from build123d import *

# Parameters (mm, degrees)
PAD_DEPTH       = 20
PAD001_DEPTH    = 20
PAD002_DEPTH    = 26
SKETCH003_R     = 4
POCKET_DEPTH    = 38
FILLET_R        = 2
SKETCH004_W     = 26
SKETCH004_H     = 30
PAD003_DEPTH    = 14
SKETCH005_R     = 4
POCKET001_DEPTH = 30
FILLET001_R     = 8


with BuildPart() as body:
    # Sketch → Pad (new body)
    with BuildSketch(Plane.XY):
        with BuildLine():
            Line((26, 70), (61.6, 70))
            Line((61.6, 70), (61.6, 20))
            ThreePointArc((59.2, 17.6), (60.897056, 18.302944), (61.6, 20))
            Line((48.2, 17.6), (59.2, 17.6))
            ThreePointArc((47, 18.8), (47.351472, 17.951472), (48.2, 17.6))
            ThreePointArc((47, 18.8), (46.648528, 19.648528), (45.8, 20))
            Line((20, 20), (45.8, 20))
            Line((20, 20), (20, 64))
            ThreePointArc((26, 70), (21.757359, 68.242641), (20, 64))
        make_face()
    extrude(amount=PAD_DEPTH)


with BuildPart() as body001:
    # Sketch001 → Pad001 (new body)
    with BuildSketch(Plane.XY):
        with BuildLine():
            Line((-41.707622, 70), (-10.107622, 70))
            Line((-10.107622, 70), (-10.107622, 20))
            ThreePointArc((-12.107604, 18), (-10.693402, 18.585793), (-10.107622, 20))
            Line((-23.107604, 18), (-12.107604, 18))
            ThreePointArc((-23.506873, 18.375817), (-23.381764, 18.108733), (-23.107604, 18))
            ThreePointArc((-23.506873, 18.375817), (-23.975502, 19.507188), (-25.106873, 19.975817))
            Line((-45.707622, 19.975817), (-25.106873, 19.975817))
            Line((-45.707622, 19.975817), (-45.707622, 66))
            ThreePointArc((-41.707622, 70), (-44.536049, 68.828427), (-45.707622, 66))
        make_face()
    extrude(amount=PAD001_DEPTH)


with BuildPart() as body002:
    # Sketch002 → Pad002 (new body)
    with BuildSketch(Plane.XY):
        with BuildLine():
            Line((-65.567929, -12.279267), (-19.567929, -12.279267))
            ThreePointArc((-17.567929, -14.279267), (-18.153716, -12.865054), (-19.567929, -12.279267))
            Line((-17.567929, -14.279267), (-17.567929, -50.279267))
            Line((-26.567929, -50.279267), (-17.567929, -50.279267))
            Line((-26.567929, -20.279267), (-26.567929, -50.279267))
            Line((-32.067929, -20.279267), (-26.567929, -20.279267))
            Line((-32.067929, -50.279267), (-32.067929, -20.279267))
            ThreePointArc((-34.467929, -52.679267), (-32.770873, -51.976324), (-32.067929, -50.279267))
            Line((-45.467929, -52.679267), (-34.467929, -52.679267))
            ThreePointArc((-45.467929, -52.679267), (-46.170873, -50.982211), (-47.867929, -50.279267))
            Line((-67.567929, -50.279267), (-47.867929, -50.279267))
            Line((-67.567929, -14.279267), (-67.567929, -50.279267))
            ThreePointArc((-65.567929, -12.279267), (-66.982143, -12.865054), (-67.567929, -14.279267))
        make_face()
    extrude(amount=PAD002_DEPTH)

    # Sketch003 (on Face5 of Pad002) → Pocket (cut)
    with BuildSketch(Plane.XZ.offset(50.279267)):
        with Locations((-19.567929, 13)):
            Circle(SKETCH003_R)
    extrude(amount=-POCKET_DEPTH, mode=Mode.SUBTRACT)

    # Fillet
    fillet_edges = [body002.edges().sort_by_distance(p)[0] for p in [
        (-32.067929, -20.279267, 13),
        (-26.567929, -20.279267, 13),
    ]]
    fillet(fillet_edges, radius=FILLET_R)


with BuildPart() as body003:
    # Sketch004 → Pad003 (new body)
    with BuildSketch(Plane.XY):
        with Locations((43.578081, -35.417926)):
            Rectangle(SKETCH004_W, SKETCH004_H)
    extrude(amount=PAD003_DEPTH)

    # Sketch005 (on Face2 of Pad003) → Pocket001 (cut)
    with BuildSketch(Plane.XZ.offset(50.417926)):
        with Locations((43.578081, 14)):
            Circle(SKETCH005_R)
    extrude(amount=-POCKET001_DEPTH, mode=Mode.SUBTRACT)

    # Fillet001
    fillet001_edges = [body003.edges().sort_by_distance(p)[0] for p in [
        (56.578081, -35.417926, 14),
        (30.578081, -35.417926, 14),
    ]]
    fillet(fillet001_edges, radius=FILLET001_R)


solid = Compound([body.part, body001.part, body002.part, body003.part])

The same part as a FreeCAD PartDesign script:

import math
import FreeCAD as App
import Part
import Sketcher

V = App.Vector
Q = App.Units.Quantity


def edges_at(feature, points):
    """Names of the edges that pass closest to the given points."""
    edges = feature.Shape.Edges
    near = lambda p: min(range(len(edges)), key=lambda i: edges[i].distToShape(Part.Vertex(*p))[0])
    return sorted({f"Edge{near(p) + 1}" for p in points})


def add_polygon(sketch, points):
    """Adds a closed chain of lines whose ends are joined by coincident constraints."""
    first, n = sketch.GeometryCount, len(points)
    for a, b in zip(points, points[1:] + points[:1]):
        sketch.addGeometry(Part.LineSegment(App.Vector(*a, 0), App.Vector(*b, 0)), False)
    for i in range(n):
        sketch.addConstraint(Sketcher.Constraint("Coincident", first + i, 2, first + (i + 1) % n, 1))

doc = App.newDocument("Part")
params = doc.addObject("Spreadsheet::Sheet", "Params")
for row, (alias, value) in enumerate([
    ("sketch1_radius", "5.999999 mm"),
    ("sketch1_radius2", "1.2 mm"),
    ("sketch1_width", "11 mm"),
    ("sketch1_height", "44 mm"),
    ("sketch1_width2", "35.6 mm"),
    ("pad1_length", "20 mm"),
    ("sketch2_radius", "4 mm"),
    ("sketch2_radius2", "2 mm"),
    ("sketch2_radius3", "1.599999 mm"),
    ("sketch2_radius4", "0.400001 mm"),
    ("sketch2_width", "11 mm"),
    ("pad2_length", "20 mm"),
    ("sketch3_radius", "2 mm"),
    ("sketch3_radius2", "2.400001 mm"),
    ("sketch3_width", "46 mm"),
    ("sketch3_width2", "11 mm"),
    ("sketch3_width3", "9 mm"),
    ("pad3_length", "26 mm"),
    ("sketch4_diameter", "8 mm"),
    ("pocket1_length", "38 mm"),
    ("fillet_radius", "2 mm"),
    ("sketch5_width", "26 mm"),
    ("sketch5_height", "30 mm"),
    ("pad4_length", "14 mm"),
    ("sketch6_diameter", "8 mm"),
    ("pocket2_length", "30 mm"),
    ("fillet2_radius", "8 mm"),
], start=1):
    params.set(f"A{row}", alias)
    params.set(f"B{row}", "=" + value)
    params.setAlias(f"B{row}", alias)

body = doc.addObject("PartDesign::Body", "Body")

sketch1 = body.newObject("Sketcher::SketchObject", "Sketch")
sketch1.AttachmentSupport = (doc.getObject("XY_Plane"), [""])
sketch1.MapMode = "FlatFace"
sketch1.addGeometry([
    Part.LineSegment(V(61.6, 70, 0), V(26, 70, 0)),
    Part.ArcOfCircle(Part.Circle(V(26, 64, 0), V(0, 0, 1), 6), math.radians(90), math.radians(180)),
    Part.LineSegment(V(20, 64, 0), V(20, 20, 0)),
    Part.LineSegment(V(20, 20, 0), V(45.8, 20, 0)),
    Part.ArcOfCircle(Part.Circle(V(45.8, 18.8, 0), V(0, 0, 1), 1.2), math.radians(0), math.radians(90)),
    Part.ArcOfCircle(Part.Circle(V(48.2, 18.8, 0), V(0, 0, 1), 1.2), math.radians(-180), math.radians(-90)),
    Part.LineSegment(V(48.2, 17.6, 0), V(59.2, 17.6, 0)),
    Part.ArcOfCircle(Part.Circle(V(59.2, 20, 0), V(0, 0, 1), 2.4), math.radians(-90), math.radians(0)),
    Part.LineSegment(V(61.6, 20, 0), V(61.6, 70, 0)),
], False)
sketch1.addConstraint([
    Sketcher.Constraint("Tangent", 0, 2, 1, 1),
    Sketcher.Constraint("Tangent", 1, 2, 2, 1),
    Sketcher.Constraint("Coincident", 2, 2, 3, 1),
    Sketcher.Constraint("Tangent", 3, 2, 4, 2),
    Sketcher.Constraint("Tangent", 4, 1, 5, 1),
    Sketcher.Constraint("Tangent", 5, 2, 6, 1),
    Sketcher.Constraint("Tangent", 6, 2, 7, 1),
    Sketcher.Constraint("Tangent", 7, 2, 8, 1),
    Sketcher.Constraint("Coincident", 8, 2, 0, 1),
    Sketcher.Constraint("Horizontal", 0),
    Sketcher.Constraint("Vertical", 2),
    Sketcher.Constraint("Horizontal", 3),
    Sketcher.Constraint("Horizontal", 6),
    Sketcher.Constraint("Vertical", 8),
    Sketcher.Constraint("Equal", 4, 5),
    Sketcher.Constraint("Horizontal", 4, 3, 5, 3),
    Sketcher.Constraint("Horizontal", 7, 3, 2, 2),
    Sketcher.Constraint("Radius", 1, Q("5.999999 mm")),
    Sketcher.Constraint("Radius", 4, Q("1.2 mm")),
    Sketcher.Constraint("DistanceX", 6, 1, 6, 2, Q("11 mm")),
    Sketcher.Constraint("DistanceY", 2, 2, 2, 1, Q("44 mm")),
    Sketcher.Constraint("DistanceX", 0, 2, 0, 1, Q("35.6 mm")),
    Sketcher.Constraint("DistanceX", -1, 1, 1, 3, Q("25.999999 mm")),
    Sketcher.Constraint("DistanceY", -1, 1, 1, 3, Q("64.000001 mm")),
])
sketch1.setExpression("Constraints[17]", "Params.sketch1_radius")
sketch1.setExpression("Constraints[18]", "Params.sketch1_radius2")
sketch1.setExpression("Constraints[19]", "Params.sketch1_width")
sketch1.setExpression("Constraints[20]", "Params.sketch1_height")
sketch1.setExpression("Constraints[21]", "Params.sketch1_width2")
pad1 = body.newObject("PartDesign::Pad", "Pad")
pad1.Profile = sketch1
pad1.setExpression("Length", "Params.pad1_length")
body2 = doc.addObject("PartDesign::Body", "Body001")

sketch2 = body2.newObject("Sketcher::SketchObject", "Sketch001")
sketch2.AttachmentSupport = (doc.getObject("XY_Plane001"), [""])
sketch2.MapMode = "FlatFace"
sketch2.addGeometry([
    Part.LineSegment(V(-10.11, 70, 0), V(-41.71, 70, 0)),
    Part.ArcOfCircle(Part.Circle(V(-41.71, 66, 0), V(0, 0, 1), 4), math.radians(90), math.radians(180)),
    Part.LineSegment(V(-45.71, 66, 0), V(-45.71, 19.98, 0)),
    Part.LineSegment(V(-45.71, 19.98, 0), V(-25.11, 19.98, 0)),
    Part.ArcOfCircle(Part.Circle(V(-25.11, 18.38, 0), V(0, 0, 1), 1.6), math.radians(0), math.radians(90)),
    Part.ArcOfCircle(Part.Circle(V(-23.11, 18.4, 0), V(0, 0, 1), 0.4), math.radians(-177), math.radians(-90)),
    Part.LineSegment(V(-23.11, 18, 0), V(-12.11, 18, 0)),
    Part.ArcOfCircle(Part.Circle(V(-12.11, 20, 0), V(0, 0, 1), 2), math.radians(-90), math.radians(0)),
    Part.LineSegment(V(-10.11, 20, 0), V(-10.11, 70, 0)),
], False)
sketch2.addConstraint([
    Sketcher.Constraint("Tangent", 0, 2, 1, 1),
    Sketcher.Constraint("Tangent", 1, 2, 2, 1),
    Sketcher.Constraint("Coincident", 2, 2, 3, 1),
    Sketcher.Constraint("Tangent", 3, 2, 4, 2),
    Sketcher.Constraint("Coincident", 4, 1, 5, 1),
    Sketcher.Constraint("Tangent", 5, 2, 6, 1),
    Sketcher.Constraint("Coincident", 6, 2, 7, 1),
    Sketcher.Constraint("Tangent", 7, 2, 8, 1),
    Sketcher.Constraint("Coincident", 8, 2, 0, 1),
    Sketcher.Constraint("Horizontal", 0),
    Sketcher.Constraint("Vertical", 2),
    Sketcher.Constraint("Horizontal", 3),
    Sketcher.Constraint("Horizontal", 6),
    Sketcher.Constraint("Vertical", 8),
    Sketcher.Constraint("Radius", 1, Q("4 mm")),
    Sketcher.Constraint("Radius", 7, Q("2 mm")),
    Sketcher.Constraint("Radius", 4, Q("1.599999 mm")),
    Sketcher.Constraint("Radius", 5, Q("0.400001 mm")),
    Sketcher.Constraint("DistanceX", 6, 1, 6, 2, Q("11 mm")),
    Sketcher.Constraint("DistanceY", 8, 1, 8, 2, Q("50 mm")),
    Sketcher.Constraint("DistanceX", 0, 2, 0, 1, Q("31.6 mm")),
    Sketcher.Constraint("DistanceY", -1, 1, 1, 3, Q("66 mm")),
    Sketcher.Constraint("DistanceY", 4, 1, 3, 2, Q("1.6 mm")),
    Sketcher.Constraint("DistanceX", 3, 1, 3, 2, Q("20.600749 mm")),
    Sketcher.Constraint("DistanceY", 2, 2, 2, 1, Q("46.024183 mm")),
    Sketcher.Constraint("DistanceX", 1, 3, -1, 1, Q("41.707622 mm")),
])
sketch2.setExpression("Constraints[14]", "Params.sketch2_radius")
sketch2.setExpression("Constraints[15]", "Params.sketch2_radius2")
sketch2.setExpression("Constraints[16]", "Params.sketch2_radius3")
sketch2.setExpression("Constraints[17]", "Params.sketch2_radius4")
sketch2.setExpression("Constraints[18]", "Params.sketch2_width")
pad2 = body2.newObject("PartDesign::Pad", "Pad001")
pad2.Profile = sketch2
pad2.setExpression("Length", "Params.pad2_length")
body3 = doc.addObject("PartDesign::Body", "Body002")

sketch3 = body3.newObject("Sketcher::SketchObject", "Sketch002")
sketch3.AttachmentSupport = (doc.getObject("XY_Plane002"), [""])
sketch3.MapMode = "FlatFace"
sketch3.addGeometry([
    Part.LineSegment(V(-19.6, -12.3, 0), V(-65.6, -12.3, 0)),
    Part.ArcOfCircle(Part.Circle(V(-65.6, -14.3, 0), V(0, 0, 1), 2), math.radians(90), math.radians(180)),
    Part.LineSegment(V(-67.6, -14.3, 0), V(-67.6, -50.3, 0)),
    Part.LineSegment(V(-67.6, -50.3, 0), V(-47.9, -50.3, 0)),
    Part.ArcOfCircle(Part.Circle(V(-47.9, -52.7, 0), V(0, 0, 1), 2.4), math.radians(0), math.radians(90)),
    Part.LineSegment(V(-45.5, -52.7, 0), V(-34.5, -52.7, 0)),
    Part.ArcOfCircle(Part.Circle(V(-34.5, -50.3, 0), V(0, 0, 1), 2.4), math.radians(-90), math.radians(0)),
    Part.LineSegment(V(-32.1, -50.3, 0), V(-32.1, -20.3, 0)),
    Part.LineSegment(V(-32.1, -20.3, 0), V(-26.6, -20.3, 0)),
    Part.LineSegment(V(-26.6, -20.3, 0), V(-26.6, -50.3, 0)),
    Part.LineSegment(V(-26.6, -50.3, 0), V(-17.6, -50.3, 0)),
    Part.LineSegment(V(-17.6, -50.3, 0), V(-17.6, -14.3, 0)),
    Part.ArcOfCircle(Part.Circle(V(-19.6, -14.3, 0), V(0, 0, 1), 2), math.radians(0), math.radians(90)),
], False)
sketch3.addConstraint([
    Sketcher.Constraint("Tangent", 0, 2, 1, 1),
    Sketcher.Constraint("Tangent", 1, 2, 2, 1),
    Sketcher.Constraint("Coincident", 2, 2, 3, 1),
    Sketcher.Constraint("Tangent", 3, 2, 4, 2),
    Sketcher.Constraint("Coincident", 4, 1, 5, 1),
    Sketcher.Constraint("Tangent", 5, 2, 6, 1),
    Sketcher.Constraint("Tangent", 6, 2, 7, 1),
    Sketcher.Constraint("Coincident", 7, 2, 8, 1),
    Sketcher.Constraint("Coincident", 8, 2, 9, 1),
    Sketcher.Constraint("Coincident", 9, 2, 10, 1),
    Sketcher.Constraint("Coincident", 10, 2, 11, 1),
    Sketcher.Constraint("Tangent", 11, 2, 12, 1),
    Sketcher.Constraint("Tangent", 12, 2, 0, 1),
    Sketcher.Constraint("Horizontal", 0),
    Sketcher.Constraint("Vertical", 2),
    Sketcher.Constraint("Horizontal", 3),
    Sketcher.Constraint("Horizontal", 5),
    Sketcher.Constraint("Vertical", 7),
    Sketcher.Constraint("Horizontal", 8),
    Sketcher.Constraint("Vertical", 9),
    Sketcher.Constraint("Horizontal", 10),
    Sketcher.Constraint("Vertical", 11),
    Sketcher.Constraint("Equal", 4, 6),
    Sketcher.Constraint("Equal", 1, 12),
    Sketcher.Constraint("Horizontal", 6, 3, 2, 2),
    Sketcher.Constraint("Horizontal", 6, 2, 9, 2),
    Sketcher.Constraint("Radius", 1, Q("2 mm")),
    Sketcher.Constraint("Radius", 4, Q("2.400001 mm")),
    Sketcher.Constraint("DistanceX", 0, 2, 0, 1, Q("46 mm")),
    Sketcher.Constraint("DistanceX", 5, 1, 5, 2, Q("11 mm")),
    Sketcher.Constraint("DistanceX", 10, 1, 10, 2, Q("9 mm")),
    Sketcher.Constraint("DistanceY", 2, 2, 2, 1, Q("36 mm")),
    Sketcher.Constraint("DistanceY", 7, 1, 7, 2, Q("30 mm")),
    Sketcher.Constraint("DistanceX", 3, 1, 3, 2, Q("19.7 mm")),
    Sketcher.Constraint("DistanceX", 1, 3, -1, 1, Q("65.567929 mm")),
    Sketcher.Constraint("DistanceY", 12, 3, -1, 1, Q("14.279269 mm")),
])
sketch3.setExpression("Constraints[26]", "Params.sketch3_radius")
sketch3.setExpression("Constraints[27]", "Params.sketch3_radius2")
sketch3.setExpression("Constraints[28]", "Params.sketch3_width")
sketch3.setExpression("Constraints[29]", "Params.sketch3_width2")
sketch3.setExpression("Constraints[30]", "Params.sketch3_width3")
pad3 = body3.newObject("PartDesign::Pad", "Pad002")
pad3.Profile = sketch3
pad3.setExpression("Length", "Params.pad3_length")

sketch4 = body3.newObject("Sketcher::SketchObject", "Sketch003")
sketch4.AttachmentSupport = (doc.getObject("XZ_Plane002"), [""])
sketch4.MapMode = "FlatFace"
sketch4.AttachmentOffset = App.Placement(V(0, 0, 50.279267), App.Rotation())
sketch4.addGeometry(Part.Circle(V(-19.6, 13, 0), V(0, 0, 1), 4), False)
sketch4.addConstraint([
    Sketcher.Constraint("Diameter", 0, Q("8 mm")),
    Sketcher.Constraint("DistanceY", -1, 1, 0, 3, Q("13 mm")),
    Sketcher.Constraint("DistanceX", 0, 3, -1, 1, Q("19.567929 mm")),
])
sketch4.setExpression("Constraints[0]", "Params.sketch4_diameter")
pocket1 = body3.newObject("PartDesign::Pocket", "Pocket")
pocket1.Profile = sketch4
pocket1.setExpression("Length", "Params.pocket1_length")
doc.recompute()

fillet = body3.newObject("PartDesign::Fillet", "Fillet")
fillet.Base = (pocket1, edges_at(pocket1, [(-32.068, -20.279, 13), (-26.568, -20.279, 13)]))
fillet.setExpression("Radius", "Params.fillet_radius")
body4 = doc.addObject("PartDesign::Body", "Body003")

sketch5 = body4.newObject("Sketcher::SketchObject", "Sketch004")
sketch5.AttachmentSupport = (doc.getObject("XY_Plane003"), [""])
sketch5.MapMode = "FlatFace"
add_polygon(sketch5, [(31, -20), (31, -50), (57, -50), (57, -20)])
sketch5.addConstraint([
    Sketcher.Constraint("Vertical", 0),
    Sketcher.Constraint("Horizontal", 1),
    Sketcher.Constraint("Vertical", 2),
    Sketcher.Constraint("Horizontal", 3),
    Sketcher.Constraint("DistanceX", 1, 1, 1, 2, Q("26 mm")),
    Sketcher.Constraint("DistanceY", 0, 2, 0, 1, Q("30 mm")),
    Sketcher.Constraint("DistanceX", -1, 1, 0, 2, Q("30.578081 mm")),
    Sketcher.Constraint("DistanceY", 0, 2, -1, 1, Q("50.417926 mm")),
])
sketch5.setExpression("Constraints[8]", "Params.sketch5_width")
sketch5.setExpression("Constraints[9]", "Params.sketch5_height")
pad4 = body4.newObject("PartDesign::Pad", "Pad003")
pad4.Profile = sketch5
pad4.setExpression("Length", "Params.pad4_length")

sketch6 = body4.newObject("Sketcher::SketchObject", "Sketch005")
sketch6.AttachmentSupport = (doc.getObject("XZ_Plane003"), [""])
sketch6.MapMode = "FlatFace"
sketch6.AttachmentOffset = App.Placement(V(0, 0, 50.417926), App.Rotation())
sketch6.addGeometry(Part.Circle(V(43.6, 14, 0), V(0, 0, 1), 4), False)
sketch6.addConstraint([
    Sketcher.Constraint("Diameter", 0, Q("8 mm")),
    Sketcher.Constraint("DistanceY", -1, 1, 0, 3, Q("14 mm")),
    Sketcher.Constraint("DistanceX", -1, 1, 0, 3, Q("43.578081 mm")),
])
sketch6.setExpression("Constraints[0]", "Params.sketch6_diameter")
pocket2 = body4.newObject("PartDesign::Pocket", "Pocket001")
pocket2.Profile = sketch6
pocket2.setExpression("Length", "Params.pocket2_length")
doc.recompute()

fillet2 = body4.newObject("PartDesign::Fillet", "Fillet001")
fillet2.Base = (pocket2, edges_at(pocket2, [(56.578, -35.418, 14), (30.578, -35.418, 14)]))
fillet2.setExpression("Radius", "Params.fillet2_radius")

doc.recompute()
